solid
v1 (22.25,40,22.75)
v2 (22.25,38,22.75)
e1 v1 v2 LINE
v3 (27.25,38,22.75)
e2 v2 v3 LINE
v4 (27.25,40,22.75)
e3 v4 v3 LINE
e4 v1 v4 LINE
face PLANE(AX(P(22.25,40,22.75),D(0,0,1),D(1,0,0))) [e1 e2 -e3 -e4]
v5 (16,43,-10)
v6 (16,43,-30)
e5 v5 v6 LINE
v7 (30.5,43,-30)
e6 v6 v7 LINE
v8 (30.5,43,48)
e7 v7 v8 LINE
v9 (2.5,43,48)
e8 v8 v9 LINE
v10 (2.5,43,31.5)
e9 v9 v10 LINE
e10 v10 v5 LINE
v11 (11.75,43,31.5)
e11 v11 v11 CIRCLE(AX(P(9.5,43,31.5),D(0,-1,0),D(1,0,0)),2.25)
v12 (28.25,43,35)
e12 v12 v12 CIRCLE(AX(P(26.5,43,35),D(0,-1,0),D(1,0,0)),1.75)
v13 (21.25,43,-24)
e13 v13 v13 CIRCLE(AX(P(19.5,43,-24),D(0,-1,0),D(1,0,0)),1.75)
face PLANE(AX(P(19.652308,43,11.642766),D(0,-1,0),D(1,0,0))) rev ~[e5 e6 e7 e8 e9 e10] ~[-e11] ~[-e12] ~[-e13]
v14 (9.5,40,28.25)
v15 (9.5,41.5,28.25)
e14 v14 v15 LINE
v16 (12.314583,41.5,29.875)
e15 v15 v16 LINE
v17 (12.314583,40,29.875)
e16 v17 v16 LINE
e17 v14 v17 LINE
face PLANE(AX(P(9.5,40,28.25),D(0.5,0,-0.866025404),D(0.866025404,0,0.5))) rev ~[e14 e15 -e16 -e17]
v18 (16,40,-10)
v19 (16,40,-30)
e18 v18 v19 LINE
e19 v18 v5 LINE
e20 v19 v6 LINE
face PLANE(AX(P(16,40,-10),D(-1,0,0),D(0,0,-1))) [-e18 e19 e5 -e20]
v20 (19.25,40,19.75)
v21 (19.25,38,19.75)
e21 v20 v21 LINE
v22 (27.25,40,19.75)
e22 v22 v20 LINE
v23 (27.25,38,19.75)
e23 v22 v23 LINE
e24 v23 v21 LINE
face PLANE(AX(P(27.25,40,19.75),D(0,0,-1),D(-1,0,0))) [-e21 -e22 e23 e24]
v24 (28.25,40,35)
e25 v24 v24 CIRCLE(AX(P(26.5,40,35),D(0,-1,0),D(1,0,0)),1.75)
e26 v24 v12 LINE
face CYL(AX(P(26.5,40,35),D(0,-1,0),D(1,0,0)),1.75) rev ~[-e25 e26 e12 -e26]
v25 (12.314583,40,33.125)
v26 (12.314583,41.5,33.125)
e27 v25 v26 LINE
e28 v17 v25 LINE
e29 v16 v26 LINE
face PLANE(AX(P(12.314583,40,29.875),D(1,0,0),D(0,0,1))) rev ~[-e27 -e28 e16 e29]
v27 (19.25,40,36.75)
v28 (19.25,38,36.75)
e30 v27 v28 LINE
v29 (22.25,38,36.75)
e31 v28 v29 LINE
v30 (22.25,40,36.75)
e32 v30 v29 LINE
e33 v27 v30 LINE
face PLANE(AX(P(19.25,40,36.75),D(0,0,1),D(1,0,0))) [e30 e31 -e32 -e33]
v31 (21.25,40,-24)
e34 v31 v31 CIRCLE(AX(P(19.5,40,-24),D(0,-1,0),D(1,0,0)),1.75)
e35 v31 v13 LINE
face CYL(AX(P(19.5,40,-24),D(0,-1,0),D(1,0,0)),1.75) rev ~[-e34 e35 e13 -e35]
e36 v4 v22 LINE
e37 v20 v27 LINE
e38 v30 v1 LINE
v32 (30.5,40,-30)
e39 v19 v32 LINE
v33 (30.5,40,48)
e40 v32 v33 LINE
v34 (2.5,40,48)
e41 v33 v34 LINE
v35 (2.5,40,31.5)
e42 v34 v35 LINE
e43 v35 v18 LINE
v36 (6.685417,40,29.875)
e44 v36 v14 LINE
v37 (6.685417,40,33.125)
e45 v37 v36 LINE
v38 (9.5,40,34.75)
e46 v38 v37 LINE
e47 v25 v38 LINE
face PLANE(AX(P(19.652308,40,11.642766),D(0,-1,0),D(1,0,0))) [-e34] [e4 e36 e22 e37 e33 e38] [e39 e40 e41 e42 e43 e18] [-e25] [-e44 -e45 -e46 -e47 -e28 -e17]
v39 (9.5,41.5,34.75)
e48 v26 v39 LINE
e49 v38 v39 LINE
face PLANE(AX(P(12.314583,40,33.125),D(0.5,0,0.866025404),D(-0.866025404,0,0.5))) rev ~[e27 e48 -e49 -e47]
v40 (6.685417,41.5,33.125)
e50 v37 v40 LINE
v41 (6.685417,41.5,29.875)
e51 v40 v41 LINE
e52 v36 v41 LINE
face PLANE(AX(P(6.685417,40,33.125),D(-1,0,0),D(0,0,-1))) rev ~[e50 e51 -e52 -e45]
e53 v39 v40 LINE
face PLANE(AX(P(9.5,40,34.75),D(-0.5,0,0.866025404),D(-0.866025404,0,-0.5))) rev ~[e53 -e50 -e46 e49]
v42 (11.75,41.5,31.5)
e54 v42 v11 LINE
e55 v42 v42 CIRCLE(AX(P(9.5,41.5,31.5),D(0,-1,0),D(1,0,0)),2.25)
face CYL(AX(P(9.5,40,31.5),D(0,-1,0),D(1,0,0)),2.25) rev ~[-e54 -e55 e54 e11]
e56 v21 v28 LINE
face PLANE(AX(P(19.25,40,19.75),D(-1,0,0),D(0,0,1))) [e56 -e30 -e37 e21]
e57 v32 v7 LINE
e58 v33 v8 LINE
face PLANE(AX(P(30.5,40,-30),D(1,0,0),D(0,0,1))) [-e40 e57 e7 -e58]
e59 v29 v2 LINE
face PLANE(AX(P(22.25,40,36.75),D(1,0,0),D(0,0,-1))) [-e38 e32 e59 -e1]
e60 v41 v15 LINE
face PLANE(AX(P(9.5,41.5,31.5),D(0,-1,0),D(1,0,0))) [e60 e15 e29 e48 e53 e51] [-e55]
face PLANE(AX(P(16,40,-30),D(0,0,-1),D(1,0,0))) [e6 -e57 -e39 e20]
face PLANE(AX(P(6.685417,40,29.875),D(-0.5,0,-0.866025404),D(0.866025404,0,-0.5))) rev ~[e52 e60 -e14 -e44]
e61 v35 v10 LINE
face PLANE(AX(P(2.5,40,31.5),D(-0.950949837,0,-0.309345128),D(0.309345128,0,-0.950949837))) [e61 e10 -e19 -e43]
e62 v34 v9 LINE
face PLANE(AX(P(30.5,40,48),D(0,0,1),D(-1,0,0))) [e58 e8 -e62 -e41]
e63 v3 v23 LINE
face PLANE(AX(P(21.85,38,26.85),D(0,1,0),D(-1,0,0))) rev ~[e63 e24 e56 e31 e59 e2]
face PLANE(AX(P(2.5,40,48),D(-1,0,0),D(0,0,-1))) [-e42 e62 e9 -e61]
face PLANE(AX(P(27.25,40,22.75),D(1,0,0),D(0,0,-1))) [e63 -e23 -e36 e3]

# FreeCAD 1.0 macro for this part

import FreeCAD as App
import Part
import Sketcher
Q = App.Units.Quantity

doc = App.newDocument("Part")
params = doc.addObject("Spreadsheet::Sheet", "Params")
for row, (alias, value) in enumerate([
    ("sketch1_diameter", "3.5 mm"),
    ("sketch1_diameter2", "4.5 mm"),
    ("sketch1_width", "28 mm"),
    ("sketch1_height", "20 mm"),
    ("sketch1_height2", "78 mm"),
    ("pad1_length", "3 mm"),
    ("sketch2_height", "3.25 mm"),
    ("pocket1_length", "1.5 mm"),
    ("sketch3_width", "3 mm"),
    ("sketch3_width2", "8 mm"),
    ("sketch3_height", "14 mm"),
    ("pad2_length", "2 mm"),
], start=1):
    params.set(f"A{row}", alias)
    params.set(f"B{row}", "=" + value)
    params.setAlias(f"B{row}", alias)

body = doc.addObject("PartDesign::Body", "Body")

# Sketch on XZ plane
sketch1 = doc.addObject("Sketcher::SketchObject", "Sketch")
body.addObject(sketch1)
sketch1.AttachmentSupport = (doc.XZ_Plane, [""])
sketch1.MapMode = "FlatFace"
sketch1.addGeometry(Part.LineSegment(App.Vector(30.5, 48, 0), App.Vector(2.5, 48, 0)), False)
sketch1.addGeometry(Part.LineSegment(App.Vector(2.5, 48, 0), App.Vector(2.5, 31.5, 0)), False)
sketch1.addGeometry(Part.LineSegment(App.Vector(2.5, 31.5, 0), App.Vector(16, -10, 0)), False)
sketch1.addGeometry(Part.LineSegment(App.Vector(16, -10, 0), App.Vector(16, -30, 0)), False)
sketch1.addGeometry(Part.LineSegment(App.Vector(16, -30, 0), App.Vector(30.5, -30, 0)), False)
sketch1.addGeometry(Part.LineSegment(App.Vector(30.5, -30, 0), App.Vector(30.5, 48, 0)), False)
sketch1.addGeometry(Part.Circle(App.Vector(19.5, -24, 0), App.Vector(0, 0, 1), 1.8), False)
sketch1.addGeometry(Part.Circle(App.Vector(9.5, 31.5, 0), App.Vector(0, 0, 1), 2.2), False)
sketch1.addGeometry(Part.Circle(App.Vector(26.5, 35, 0), App.Vector(0, 0, 1), 1.8), False)
sketch1.addConstraint(Sketcher.Constraint("Coincident", 0, 2, 1, 1))
sketch1.addConstraint(Sketcher.Constraint("Coincident", 1, 2, 2, 1))
sketch1.addConstraint(Sketcher.Constraint("Coincident", 2, 2, 3, 1))
sketch1.addConstraint(Sketcher.Constraint("Coincident", 3, 2, 4, 1))
sketch1.addConstraint(Sketcher.Constraint("Coincident", 4, 2, 5, 1))
sketch1.addConstraint(Sketcher.Constraint("Coincident", 5, 2, 0, 1))
sketch1.addConstraint(Sketcher.Constraint("Horizontal", 0))
sketch1.addConstraint(Sketcher.Constraint("Vertical", 1))
sketch1.addConstraint(Sketcher.Constraint("Vertical", 3))
sketch1.addConstraint(Sketcher.Constraint("Horizontal", 4))
sketch1.addConstraint(Sketcher.Constraint("Vertical", 5))
sketch1.addConstraint(Sketcher.Constraint("Equal", 6, 8))
sketch1.addConstraint(Sketcher.Constraint("Horizontal", 7, 3, 1, 2))
sketch1.addConstraint(Sketcher.Constraint("Diameter", 6, 3.5))
sketch1.addConstraint(Sketcher.Constraint("Diameter", 7, 4.5))
sketch1.addConstraint(Sketcher.Constraint("DistanceX", 0, 2, 0, 1, 28.0))
sketch1.addConstraint(Sketcher.Constraint("DistanceY", 3, 2, 3, 1, 20.0))
sketch1.addConstraint(Sketcher.Constraint("DistanceY", 5, 1, 5, 2, 78.0))
sketch1.addConstraint(Sketcher.Constraint("DistanceX", 4, 1, 4, 2, 14.5))
sketch1.addConstraint(Sketcher.Constraint("DistanceY", 1, 2, 1, 1, 16.5))
sketch1.addConstraint(Sketcher.Constraint("DistanceY", 6, 3, -1, 1, 24.0))
sketch1.addConstraint(Sketcher.Constraint("DistanceY", -1, 1, 8, 3, 35.0))
sketch1.addConstraint(Sketcher.Constraint("DistanceY", -1, 1, 0, 2, 48.0))
sketch1.addConstraint(Sketcher.Constraint("DistanceX", -1, 1, 2, 2, 16.0))
sketch1.addConstraint(Sketcher.Constraint("DistanceX", 7, 3, 6, 3, 10.0))
sketch1.addConstraint(Sketcher.Constraint("DistanceX", 7, 3, 8, 3, 17.0))
sketch1.addConstraint(Sketcher.Constraint("DistanceX", 0, 2, 7, 3, 7.0))
sketch1.setExpression("Constraints[13]", "Params.sketch1_diameter")
sketch1.setExpression("Constraints[14]", "Params.sketch1_diameter2")
sketch1.setExpression("Constraints[15]", "Params.sketch1_width")
sketch1.setExpression("Constraints[16]", "Params.sketch1_height")
sketch1.setExpression("Constraints[17]", "Params.sketch1_height2")
pad1 = doc.addObject("PartDesign::Pad", "Pad")
body.addObject(pad1)
pad1.Profile = sketch1
pad1.setExpression("Length", "Params.pad1_length")
pad1.Reversed = True

# Sketch on XZ plane
sketch2 = doc.addObject("Sketcher::SketchObject", "Sketch001")
body.addObject(sketch2)
sketch2.AttachmentSupport = (doc.XZ_Plane, [""])
sketch2.MapMode = "FlatFace"
sketch2.addGeometry(Part.LineSegment(App.Vector(12.3, 29.9, 0), App.Vector(12.3, 33.1, 0)), False)
sketch2.addGeometry(Part.LineSegment(App.Vector(12.3, 33.1, 0), App.Vector(9.5, 34.8, 0)), False)
sketch2.addGeometry(Part.LineSegment(App.Vector(9.5, 34.8, 0), App.Vector(6.7, 33.1, 0)), False)
sketch2.addGeometry(Part.LineSegment(App.Vector(6.7, 33.1, 0), App.Vector(6.7, 29.9, 0)), False)
sketch2.addGeometry(Part.LineSegment(App.Vector(6.7, 29.9, 0), App.Vector(9.5, 28.2, 0)), False)
sketch2.addGeometry(Part.LineSegment(App.Vector(9.5, 28.2, 0), App.Vector(12.3, 29.9, 0)), False)
sketch2.addConstraint(Sketcher.Constraint("Coincident", 0, 2, 1, 1))
sketch2.addConstraint(Sketcher.Constraint("Coincident", 1, 2, 2, 1))
sketch2.addConstraint(Sketcher.Constraint("Coincident", 2, 2, 3, 1))
sketch2.addConstraint(Sketcher.Constraint("Coincident", 3, 2, 4, 1))
sketch2.addConstraint(Sketcher.Constraint("Coincident", 4, 2, 5, 1))
sketch2.addConstraint(Sketcher.Constraint("Coincident", 5, 2, 0, 1))
sketch2.addConstraint(Sketcher.Constraint("Vertical", 0))
sketch2.addConstraint(Sketcher.Constraint("Vertical", 3))
sketch2.addConstraint(Sketcher.Constraint("Parallel", 1, 4))
sketch2.addConstraint(Sketcher.Constraint("Parallel", 2, 5))
sketch2.addConstraint(Sketcher.Constraint("Horizontal", 0, 2, 2, 2))
sketch2.addConstraint(Sketcher.Constraint("Horizontal", 3, 2, 5, 2))
sketch2.addConstraint(Sketcher.Constraint("Vertical", 1, 2, 4, 2))
sketch2.addConstraint(Sketcher.Constraint("Angle", 1, Q("150 deg")))
sketch2.addConstraint(Sketcher.Constraint("DistanceY", 0, 1, 0, 2, 3.25))
sketch2.addConstraint(Sketcher.Constraint("DistanceX", -1, 1, 1, 2, 9.5))
sketch2.addConstraint(Sketcher.Constraint("DistanceY", 4, 2, 1, 2, 6.5))
sketch2.addConstraint(Sketcher.Constraint("DistanceY", -1, 1, 1, 2, 34.75))
sketch2.setExpression("Constraints[14]", "Params.sketch2_height")
pocket1 = doc.addObject("PartDesign::Pocket", "Pocket")
body.addObject(pocket1)
pocket1.Profile = sketch2
pocket1.setExpression("Length", "Params.pocket1_length")

# Sketch on XZ plane
sketch3 = doc.addObject("Sketcher::SketchObject", "Sketch002")
body.addObject(sketch3)
sketch3.AttachmentSupport = (doc.XZ_Plane, [""])
sketch3.MapMode = "FlatFace"
sketch3.addGeometry(Part.LineSegment(App.Vector(22.2, 22.8, 0), App.Vector(22.2, 36.8, 0)), False)
sketch3.addGeometry(Part.LineSegment(App.Vector(22.2, 36.8, 0), App.Vector(19.2, 36.8, 0)), False)
sketch3.addGeometry(Part.LineSegment(App.Vector(19.2, 36.8, 0), App.Vector(19.2, 19.8, 0)), False)
sketch3.addGeometry(Part.LineSegment(App.Vector(19.2, 19.8, 0), App.Vector(27.2, 19.8, 0)), False)
sketch3.addGeometry(Part.LineSegment(App.Vector(27.2, 19.8, 0), App.Vector(27.2, 22.8, 0)), False)
sketch3.addGeometry(Part.LineSegment(App.Vector(27.2, 22.8, 0), App.Vector(22.2, 22.8, 0)), False)
sketch3.addConstraint(Sketcher.Constraint("Coincident", 0, 2, 1, 1))
sketch3.addConstraint(Sketcher.Constraint("Coincident", 1, 2, 2, 1))
sketch3.addConstraint(Sketcher.Constraint("Coincident", 2, 2, 3, 1))
sketch3.addConstraint(Sketcher.Constraint("Coincident", 3, 2, 4, 1))
sketch3.addConstraint(Sketcher.Constraint("Coincident", 4, 2, 5, 1))
sketch3.addConstraint(Sketcher.Constraint("Coincident", 5, 2, 0, 1))
sketch3.addConstraint(Sketcher.Constraint("Vertical", 0))
sketch3.addConstraint(Sketcher.Constraint("Horizontal", 1))
sketch3.addConstraint(Sketcher.Constraint("Vertical", 2))
sketch3.addConstraint(Sketcher.Constraint("Horizontal", 3))
sketch3.addConstraint(Sketcher.Constraint("Vertical", 4))
sketch3.addConstraint(Sketcher.Constraint("Horizontal", 5))
sketch3.addConstraint(Sketcher.Constraint("Equal", 1, 4))
sketch3.addConstraint(Sketcher.Constraint("DistanceX", 1, 2, 1, 1, 3.0))
sketch3.addConstraint(Sketcher.Constraint("DistanceX", 3, 1, 3, 2, 8.0))
sketch3.addConstraint(Sketcher.Constraint("DistanceY", 0, 1, 0, 2, 14.0))
sketch3.addConstraint(Sketcher.Constraint("DistanceX", -1, 1, 0, 2, 22.25))
sketch3.addConstraint(Sketcher.Constraint("DistanceY", -1, 1, 0, 2, 36.75))
sketch3.setExpression("Constraints[13]", "Params.sketch3_width")
sketch3.setExpression("Constraints[14]", "Params.sketch3_width2")
sketch3.setExpression("Constraints[15]", "Params.sketch3_height")
pad2 = doc.addObject("PartDesign::Pad", "Pad001")
body.addObject(pad2)
pad2.Profile = sketch3
pad2.setExpression("Length", "Params.pad2_length")
body2 = doc.addObject("PartDesign::Body", "Body001")
doc.recompute()

body.Placement = App.Placement(App.Vector(0, 40, 0), App.Rotation(App.Vector(0, 0, 1), 0))
boolean = doc.addObject("PartDesign::Boolean", "Boolean")
body2.addObject(boolean)
boolean.Type = "Fuse"
boolean.addObjects([body])

doc.recompute()
